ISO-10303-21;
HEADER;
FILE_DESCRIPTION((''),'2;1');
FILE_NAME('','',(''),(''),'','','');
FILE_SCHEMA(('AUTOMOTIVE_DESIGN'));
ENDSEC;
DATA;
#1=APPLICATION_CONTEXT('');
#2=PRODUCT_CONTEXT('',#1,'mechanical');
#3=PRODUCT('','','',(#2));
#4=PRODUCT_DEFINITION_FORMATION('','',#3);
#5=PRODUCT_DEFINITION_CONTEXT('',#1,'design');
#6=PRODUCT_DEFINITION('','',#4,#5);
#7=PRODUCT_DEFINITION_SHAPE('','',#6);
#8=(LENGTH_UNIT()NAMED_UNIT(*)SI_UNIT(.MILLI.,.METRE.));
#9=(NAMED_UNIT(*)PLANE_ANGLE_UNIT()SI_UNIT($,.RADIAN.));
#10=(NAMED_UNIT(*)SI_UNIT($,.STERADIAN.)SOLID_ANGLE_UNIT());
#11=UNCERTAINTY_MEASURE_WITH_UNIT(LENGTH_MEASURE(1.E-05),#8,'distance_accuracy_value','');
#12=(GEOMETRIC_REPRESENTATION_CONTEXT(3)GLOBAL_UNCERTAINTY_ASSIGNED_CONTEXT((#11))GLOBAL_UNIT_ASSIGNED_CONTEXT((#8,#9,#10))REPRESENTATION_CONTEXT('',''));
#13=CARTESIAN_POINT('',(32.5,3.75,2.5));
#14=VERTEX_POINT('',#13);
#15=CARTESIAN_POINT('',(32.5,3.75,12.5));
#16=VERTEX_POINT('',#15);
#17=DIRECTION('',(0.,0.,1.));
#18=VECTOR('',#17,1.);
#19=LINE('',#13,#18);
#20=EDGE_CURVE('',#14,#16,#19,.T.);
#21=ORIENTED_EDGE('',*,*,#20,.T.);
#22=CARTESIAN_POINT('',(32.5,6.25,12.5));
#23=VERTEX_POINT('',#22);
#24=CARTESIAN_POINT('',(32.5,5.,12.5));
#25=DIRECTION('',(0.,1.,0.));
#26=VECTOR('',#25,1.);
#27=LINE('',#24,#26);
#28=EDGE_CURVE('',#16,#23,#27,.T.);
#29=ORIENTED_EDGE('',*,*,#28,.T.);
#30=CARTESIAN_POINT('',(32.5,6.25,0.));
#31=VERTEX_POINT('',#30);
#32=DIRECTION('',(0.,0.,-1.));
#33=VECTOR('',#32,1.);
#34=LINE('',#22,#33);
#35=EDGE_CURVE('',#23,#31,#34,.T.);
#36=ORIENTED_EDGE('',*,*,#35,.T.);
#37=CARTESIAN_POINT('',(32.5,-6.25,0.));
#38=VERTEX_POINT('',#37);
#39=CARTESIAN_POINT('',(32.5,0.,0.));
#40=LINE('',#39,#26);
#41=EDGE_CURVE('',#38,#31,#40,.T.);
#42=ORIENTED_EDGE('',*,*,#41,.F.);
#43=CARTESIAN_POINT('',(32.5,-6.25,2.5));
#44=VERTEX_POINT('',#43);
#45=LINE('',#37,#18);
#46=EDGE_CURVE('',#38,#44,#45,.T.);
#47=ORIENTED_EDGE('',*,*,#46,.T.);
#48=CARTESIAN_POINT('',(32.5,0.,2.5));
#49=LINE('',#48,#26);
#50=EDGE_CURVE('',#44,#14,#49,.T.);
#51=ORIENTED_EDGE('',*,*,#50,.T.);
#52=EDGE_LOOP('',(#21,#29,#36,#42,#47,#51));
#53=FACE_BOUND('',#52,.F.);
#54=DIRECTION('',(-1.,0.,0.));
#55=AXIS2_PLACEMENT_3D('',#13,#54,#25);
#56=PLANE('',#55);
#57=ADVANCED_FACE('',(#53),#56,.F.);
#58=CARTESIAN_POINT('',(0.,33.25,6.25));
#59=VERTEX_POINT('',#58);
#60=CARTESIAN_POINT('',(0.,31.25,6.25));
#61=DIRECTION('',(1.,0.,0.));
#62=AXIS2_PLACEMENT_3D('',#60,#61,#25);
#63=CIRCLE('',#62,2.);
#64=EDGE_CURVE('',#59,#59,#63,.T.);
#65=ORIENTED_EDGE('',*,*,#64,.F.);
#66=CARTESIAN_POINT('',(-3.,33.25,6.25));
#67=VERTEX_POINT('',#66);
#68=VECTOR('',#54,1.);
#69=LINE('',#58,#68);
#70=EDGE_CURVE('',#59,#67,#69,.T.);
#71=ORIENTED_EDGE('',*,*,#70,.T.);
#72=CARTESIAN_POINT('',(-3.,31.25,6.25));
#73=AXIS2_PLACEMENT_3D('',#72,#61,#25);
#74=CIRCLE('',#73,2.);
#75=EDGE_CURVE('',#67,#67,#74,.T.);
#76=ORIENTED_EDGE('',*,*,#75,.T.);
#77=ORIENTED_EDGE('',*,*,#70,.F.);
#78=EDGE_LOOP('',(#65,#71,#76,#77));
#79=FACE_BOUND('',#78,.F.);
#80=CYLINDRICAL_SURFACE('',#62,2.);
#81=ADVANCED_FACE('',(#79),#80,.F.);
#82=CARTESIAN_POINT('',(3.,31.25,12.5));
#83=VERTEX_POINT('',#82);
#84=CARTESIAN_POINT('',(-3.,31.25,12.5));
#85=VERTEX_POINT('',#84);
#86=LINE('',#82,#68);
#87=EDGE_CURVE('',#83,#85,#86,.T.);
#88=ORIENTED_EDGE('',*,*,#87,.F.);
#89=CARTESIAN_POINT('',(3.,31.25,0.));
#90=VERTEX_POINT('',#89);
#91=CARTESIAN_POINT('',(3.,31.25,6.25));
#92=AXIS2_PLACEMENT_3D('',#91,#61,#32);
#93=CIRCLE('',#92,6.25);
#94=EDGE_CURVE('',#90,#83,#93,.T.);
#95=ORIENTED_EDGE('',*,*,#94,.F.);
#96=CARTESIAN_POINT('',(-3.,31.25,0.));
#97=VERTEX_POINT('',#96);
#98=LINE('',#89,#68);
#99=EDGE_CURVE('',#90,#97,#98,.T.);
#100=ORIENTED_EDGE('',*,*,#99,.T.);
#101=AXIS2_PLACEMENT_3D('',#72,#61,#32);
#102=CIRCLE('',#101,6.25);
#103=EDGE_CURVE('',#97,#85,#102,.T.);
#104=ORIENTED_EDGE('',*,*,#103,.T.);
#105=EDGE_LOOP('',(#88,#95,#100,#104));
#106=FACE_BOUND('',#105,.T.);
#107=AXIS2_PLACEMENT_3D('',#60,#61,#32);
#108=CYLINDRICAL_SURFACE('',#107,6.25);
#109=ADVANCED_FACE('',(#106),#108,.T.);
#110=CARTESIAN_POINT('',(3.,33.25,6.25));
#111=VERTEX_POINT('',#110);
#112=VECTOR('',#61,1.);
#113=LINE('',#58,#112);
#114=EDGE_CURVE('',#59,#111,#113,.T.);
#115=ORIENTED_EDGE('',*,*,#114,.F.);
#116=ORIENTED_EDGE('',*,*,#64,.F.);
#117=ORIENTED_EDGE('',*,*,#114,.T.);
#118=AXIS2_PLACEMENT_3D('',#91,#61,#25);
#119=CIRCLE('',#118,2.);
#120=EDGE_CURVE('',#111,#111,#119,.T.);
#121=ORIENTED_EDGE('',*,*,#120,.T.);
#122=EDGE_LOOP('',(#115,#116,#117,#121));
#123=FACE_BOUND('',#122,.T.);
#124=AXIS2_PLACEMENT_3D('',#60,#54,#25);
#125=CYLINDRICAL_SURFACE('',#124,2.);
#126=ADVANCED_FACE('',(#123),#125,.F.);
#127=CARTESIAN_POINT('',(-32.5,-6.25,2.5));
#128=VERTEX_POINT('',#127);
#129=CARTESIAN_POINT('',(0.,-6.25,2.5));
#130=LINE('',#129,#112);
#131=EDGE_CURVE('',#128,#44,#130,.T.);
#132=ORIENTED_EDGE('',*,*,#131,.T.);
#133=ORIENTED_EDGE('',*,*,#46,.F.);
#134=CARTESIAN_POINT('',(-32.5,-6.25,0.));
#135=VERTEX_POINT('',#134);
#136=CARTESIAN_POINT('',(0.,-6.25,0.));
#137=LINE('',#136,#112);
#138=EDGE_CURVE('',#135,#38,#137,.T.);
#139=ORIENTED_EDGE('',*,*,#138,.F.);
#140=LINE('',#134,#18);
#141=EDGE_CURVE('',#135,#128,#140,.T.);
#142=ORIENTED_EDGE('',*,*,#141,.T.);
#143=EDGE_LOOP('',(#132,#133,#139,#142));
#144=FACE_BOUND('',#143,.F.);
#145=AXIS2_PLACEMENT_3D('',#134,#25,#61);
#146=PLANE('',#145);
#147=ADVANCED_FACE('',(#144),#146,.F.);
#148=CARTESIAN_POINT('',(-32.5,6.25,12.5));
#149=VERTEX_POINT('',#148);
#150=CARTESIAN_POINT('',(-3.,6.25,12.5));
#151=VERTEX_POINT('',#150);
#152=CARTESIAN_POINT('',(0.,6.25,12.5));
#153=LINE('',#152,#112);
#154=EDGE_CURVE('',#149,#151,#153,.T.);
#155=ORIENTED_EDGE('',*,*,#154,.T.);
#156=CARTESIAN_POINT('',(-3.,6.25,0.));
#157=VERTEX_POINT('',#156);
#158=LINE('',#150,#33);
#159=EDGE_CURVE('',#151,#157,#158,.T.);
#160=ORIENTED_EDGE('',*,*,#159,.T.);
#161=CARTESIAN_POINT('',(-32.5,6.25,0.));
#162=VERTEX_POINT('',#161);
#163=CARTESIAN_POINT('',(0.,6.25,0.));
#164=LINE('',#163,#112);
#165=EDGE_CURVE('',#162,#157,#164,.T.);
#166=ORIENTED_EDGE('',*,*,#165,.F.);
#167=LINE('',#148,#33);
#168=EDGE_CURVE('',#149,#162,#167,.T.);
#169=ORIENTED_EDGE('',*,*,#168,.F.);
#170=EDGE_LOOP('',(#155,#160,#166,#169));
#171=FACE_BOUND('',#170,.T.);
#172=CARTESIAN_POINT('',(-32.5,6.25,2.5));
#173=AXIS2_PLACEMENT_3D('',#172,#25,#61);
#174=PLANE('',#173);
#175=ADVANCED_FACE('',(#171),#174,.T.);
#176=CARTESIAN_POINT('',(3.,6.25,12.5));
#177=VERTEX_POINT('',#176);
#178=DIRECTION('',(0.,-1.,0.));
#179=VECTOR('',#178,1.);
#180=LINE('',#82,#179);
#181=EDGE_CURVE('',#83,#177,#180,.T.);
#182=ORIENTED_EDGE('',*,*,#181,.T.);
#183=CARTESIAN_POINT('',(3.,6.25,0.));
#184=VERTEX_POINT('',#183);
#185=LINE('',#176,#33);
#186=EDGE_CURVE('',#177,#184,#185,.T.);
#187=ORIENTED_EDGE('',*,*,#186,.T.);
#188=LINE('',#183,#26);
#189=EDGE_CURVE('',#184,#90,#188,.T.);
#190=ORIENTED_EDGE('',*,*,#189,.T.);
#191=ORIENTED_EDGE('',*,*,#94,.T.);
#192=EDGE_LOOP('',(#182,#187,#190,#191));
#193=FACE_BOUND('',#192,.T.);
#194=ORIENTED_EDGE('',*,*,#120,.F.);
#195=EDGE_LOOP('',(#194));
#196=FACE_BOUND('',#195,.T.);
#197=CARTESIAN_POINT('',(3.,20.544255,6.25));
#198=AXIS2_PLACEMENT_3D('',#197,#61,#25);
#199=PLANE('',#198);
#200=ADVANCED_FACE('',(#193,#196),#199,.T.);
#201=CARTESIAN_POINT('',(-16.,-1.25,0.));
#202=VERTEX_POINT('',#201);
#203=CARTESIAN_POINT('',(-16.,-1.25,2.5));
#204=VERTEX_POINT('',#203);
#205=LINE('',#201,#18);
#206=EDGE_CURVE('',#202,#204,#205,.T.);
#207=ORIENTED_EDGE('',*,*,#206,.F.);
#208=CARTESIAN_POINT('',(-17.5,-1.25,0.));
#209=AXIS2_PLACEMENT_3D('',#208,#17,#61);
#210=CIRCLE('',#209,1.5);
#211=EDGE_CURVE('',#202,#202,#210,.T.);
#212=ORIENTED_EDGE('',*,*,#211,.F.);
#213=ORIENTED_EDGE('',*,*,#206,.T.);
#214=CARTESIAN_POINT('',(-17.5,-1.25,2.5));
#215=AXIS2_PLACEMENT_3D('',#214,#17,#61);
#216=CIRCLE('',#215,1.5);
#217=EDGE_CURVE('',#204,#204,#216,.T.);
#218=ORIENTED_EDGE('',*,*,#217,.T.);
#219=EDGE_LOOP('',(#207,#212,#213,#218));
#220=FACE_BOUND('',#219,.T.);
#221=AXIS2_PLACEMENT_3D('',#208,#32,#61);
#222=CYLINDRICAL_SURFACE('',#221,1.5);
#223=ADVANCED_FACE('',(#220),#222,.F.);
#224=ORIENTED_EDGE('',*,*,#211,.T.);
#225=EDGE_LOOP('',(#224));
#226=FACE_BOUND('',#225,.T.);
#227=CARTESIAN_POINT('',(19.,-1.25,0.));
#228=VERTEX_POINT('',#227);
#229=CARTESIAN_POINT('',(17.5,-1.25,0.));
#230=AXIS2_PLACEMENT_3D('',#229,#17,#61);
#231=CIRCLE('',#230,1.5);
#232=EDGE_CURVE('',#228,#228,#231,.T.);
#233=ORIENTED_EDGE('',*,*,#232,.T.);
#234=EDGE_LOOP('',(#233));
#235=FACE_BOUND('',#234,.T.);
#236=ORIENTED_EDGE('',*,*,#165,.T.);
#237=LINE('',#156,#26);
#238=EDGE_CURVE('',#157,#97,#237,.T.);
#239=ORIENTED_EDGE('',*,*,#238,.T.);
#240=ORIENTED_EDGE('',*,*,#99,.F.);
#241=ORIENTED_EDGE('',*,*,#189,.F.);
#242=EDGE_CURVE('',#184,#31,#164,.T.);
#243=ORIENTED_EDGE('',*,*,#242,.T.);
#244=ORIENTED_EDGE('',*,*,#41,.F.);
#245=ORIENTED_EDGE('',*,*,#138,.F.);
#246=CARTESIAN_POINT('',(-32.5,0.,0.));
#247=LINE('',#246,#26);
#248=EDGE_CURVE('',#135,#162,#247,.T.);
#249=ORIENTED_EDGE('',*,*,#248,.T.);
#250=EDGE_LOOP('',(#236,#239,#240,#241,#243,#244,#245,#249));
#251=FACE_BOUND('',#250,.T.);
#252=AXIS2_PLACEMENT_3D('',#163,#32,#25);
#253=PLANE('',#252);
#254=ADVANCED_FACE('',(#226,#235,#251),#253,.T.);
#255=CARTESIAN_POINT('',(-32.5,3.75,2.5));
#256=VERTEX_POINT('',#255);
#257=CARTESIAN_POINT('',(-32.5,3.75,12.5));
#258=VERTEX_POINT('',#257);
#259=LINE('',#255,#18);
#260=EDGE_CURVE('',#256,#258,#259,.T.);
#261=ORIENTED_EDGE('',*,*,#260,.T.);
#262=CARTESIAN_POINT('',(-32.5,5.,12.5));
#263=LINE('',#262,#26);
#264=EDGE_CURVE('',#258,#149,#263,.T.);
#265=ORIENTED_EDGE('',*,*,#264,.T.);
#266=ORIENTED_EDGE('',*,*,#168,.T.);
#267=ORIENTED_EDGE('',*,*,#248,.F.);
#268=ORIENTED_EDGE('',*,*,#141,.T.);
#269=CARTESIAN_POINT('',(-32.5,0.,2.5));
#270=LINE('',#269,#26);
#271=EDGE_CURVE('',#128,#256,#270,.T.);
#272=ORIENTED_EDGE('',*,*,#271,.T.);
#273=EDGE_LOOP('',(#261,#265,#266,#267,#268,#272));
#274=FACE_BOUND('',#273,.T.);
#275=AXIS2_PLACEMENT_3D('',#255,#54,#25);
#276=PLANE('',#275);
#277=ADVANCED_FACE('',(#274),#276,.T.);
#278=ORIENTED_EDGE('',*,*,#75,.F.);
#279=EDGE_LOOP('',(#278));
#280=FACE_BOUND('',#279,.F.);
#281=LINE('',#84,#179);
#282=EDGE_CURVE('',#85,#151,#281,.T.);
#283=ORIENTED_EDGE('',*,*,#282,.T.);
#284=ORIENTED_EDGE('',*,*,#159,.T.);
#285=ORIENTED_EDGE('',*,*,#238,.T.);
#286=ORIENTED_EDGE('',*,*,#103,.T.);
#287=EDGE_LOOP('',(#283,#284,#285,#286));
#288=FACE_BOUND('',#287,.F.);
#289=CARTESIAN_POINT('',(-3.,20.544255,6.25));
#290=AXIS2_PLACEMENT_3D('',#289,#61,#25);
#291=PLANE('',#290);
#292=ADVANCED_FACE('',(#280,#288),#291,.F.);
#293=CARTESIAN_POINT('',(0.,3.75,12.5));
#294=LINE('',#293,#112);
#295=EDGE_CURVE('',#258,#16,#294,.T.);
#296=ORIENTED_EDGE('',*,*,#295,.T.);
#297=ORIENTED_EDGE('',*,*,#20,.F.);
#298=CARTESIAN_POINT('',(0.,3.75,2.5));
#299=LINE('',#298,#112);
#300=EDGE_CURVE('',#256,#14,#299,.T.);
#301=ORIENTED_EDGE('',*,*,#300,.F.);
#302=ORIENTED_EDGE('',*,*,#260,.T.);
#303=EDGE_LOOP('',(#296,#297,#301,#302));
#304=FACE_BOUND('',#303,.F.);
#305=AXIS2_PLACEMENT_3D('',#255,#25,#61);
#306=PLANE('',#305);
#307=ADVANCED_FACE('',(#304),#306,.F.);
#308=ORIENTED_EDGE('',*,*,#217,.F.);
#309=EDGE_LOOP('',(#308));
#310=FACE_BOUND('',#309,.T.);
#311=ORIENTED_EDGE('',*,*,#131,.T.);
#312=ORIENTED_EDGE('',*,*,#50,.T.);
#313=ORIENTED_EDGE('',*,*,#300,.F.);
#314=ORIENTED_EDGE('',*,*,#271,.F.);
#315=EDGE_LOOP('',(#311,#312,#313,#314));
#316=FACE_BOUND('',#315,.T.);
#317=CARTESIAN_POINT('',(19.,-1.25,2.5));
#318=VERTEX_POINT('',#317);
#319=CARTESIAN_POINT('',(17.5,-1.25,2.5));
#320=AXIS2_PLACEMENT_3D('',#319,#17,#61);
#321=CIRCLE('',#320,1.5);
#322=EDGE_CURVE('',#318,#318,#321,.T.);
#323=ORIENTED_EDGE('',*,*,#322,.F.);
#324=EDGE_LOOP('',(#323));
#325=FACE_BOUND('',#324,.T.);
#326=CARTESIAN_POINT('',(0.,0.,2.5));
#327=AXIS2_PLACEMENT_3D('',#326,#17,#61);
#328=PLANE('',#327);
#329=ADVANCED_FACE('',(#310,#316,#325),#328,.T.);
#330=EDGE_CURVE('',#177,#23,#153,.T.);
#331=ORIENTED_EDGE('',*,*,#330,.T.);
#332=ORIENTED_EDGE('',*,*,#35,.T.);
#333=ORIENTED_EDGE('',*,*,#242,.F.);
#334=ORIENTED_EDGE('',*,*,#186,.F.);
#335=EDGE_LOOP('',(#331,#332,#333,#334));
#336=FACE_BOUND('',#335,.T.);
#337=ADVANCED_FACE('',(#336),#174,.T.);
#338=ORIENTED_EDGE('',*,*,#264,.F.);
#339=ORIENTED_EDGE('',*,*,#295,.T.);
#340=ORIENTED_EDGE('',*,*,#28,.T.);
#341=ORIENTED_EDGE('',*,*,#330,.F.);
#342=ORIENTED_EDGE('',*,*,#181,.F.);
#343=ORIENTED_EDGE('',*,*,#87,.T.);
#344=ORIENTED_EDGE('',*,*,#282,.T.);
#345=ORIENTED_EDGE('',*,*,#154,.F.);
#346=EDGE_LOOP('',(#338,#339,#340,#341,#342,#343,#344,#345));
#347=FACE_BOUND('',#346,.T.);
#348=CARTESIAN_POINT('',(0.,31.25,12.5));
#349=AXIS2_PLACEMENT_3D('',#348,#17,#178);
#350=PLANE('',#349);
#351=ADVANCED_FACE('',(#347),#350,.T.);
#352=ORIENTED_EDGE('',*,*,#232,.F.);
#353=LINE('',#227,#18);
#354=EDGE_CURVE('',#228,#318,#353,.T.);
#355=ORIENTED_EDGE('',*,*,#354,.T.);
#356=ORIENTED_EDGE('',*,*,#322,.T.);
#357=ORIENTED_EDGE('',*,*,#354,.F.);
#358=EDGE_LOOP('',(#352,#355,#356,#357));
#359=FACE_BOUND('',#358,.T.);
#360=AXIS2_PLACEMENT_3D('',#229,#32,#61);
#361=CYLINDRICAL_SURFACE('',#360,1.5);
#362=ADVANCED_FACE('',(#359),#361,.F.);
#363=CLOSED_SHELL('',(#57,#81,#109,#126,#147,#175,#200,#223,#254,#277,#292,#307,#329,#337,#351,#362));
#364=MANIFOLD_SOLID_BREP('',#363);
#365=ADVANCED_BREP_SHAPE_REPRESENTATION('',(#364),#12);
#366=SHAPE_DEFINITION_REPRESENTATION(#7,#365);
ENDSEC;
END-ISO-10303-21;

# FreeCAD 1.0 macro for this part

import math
import FreeCAD as App
import Part
import Sketcher

doc = App.newDocument("Part")
params = doc.addObject("Spreadsheet::Sheet", "Params")
for row, (alias, value) in enumerate([
    ("sketch1_diameter", "3 mm"),
    ("sketch1_width", "65 mm"),
    ("sketch1_height", "12.5 mm"),
    ("pad1_length", "2.5 mm"),
    ("sketch2_width", "65 mm"),
    ("sketch2_height", "2.5 mm"),
    ("pad2_length", "10 mm"),
    ("sketch3_diameter", "4 mm"),
    ("sketch3_width", "25 mm"),
    ("sketch3_radius", "6.25 mm"),
    ("pad3_length", "3 mm"),
    ("pad3_length2", "3 mm"),
], start=1):
    params.set(f"A{row}", alias)
    params.set(f"B{row}", "=" + value)
    params.setAlias(f"B{row}", alias)

body = doc.addObject("PartDesign::Body", "Body")

# Sketch on XY plane
sketch1 = body.newObject("Sketcher::SketchObject", "Sketch")
sketch1.AttachmentSupport = (doc.getObject("XY_Plane"), [""])
sketch1.MapMode = "FlatFace"
sketch1.addGeometry([
    Part.LineSegment(App.Vector(-32.5, 6.2, 0), App.Vector(-32.5, -6.2, 0)),  # 0
    Part.LineSegment(App.Vector(-32.5, -6.2, 0), App.Vector(32.5, -6.2, 0)),  # 1
    Part.LineSegment(App.Vector(32.5, -6.2, 0), App.Vector(32.5, 6.2, 0)),  # 2
    Part.LineSegment(App.Vector(32.5, 6.2, 0), App.Vector(-32.5, 6.2, 0)),  # 3
    Part.Circle(App.Vector(-17.5, -1.2, 0), App.Vector(0, 0, 1), 1.5),  # 4
    Part.Circle(App.Vector(17.5, -1.2, 0), App.Vector(0, 0, 1), 1.5),  # 5
], False)
sketch1.addConstraint([
    Sketcher.Constraint("Coincident", 0, 2, 1, 1),
    Sketcher.Constraint("Coincident", 1, 2, 2, 1),
    Sketcher.Constraint("Coincident", 2, 2, 3, 1),
    Sketcher.Constraint("Coincident", 3, 2, 0, 1),
    Sketcher.Constraint("Vertical", 0),
    Sketcher.Constraint("Horizontal", 1),
    Sketcher.Constraint("Vertical", 2),
    Sketcher.Constraint("Horizontal", 3),
    Sketcher.Constraint("Equal", 4, 5),
    Sketcher.Constraint("Symmetric", 0, 2, 2, 2, -1, 1),
    Sketcher.Constraint("Symmetric", 4, 3, 5, 3, -2),
    Sketcher.Constraint("Diameter", 4, 3.0),
    Sketcher.Constraint("DistanceX", 1, 1, 1, 2, 65.0),
    Sketcher.Constraint("DistanceY", 0, 2, 0, 1, 12.5),
    Sketcher.Constraint("DistanceX", 4, 3, 5, 3, 35.0),
    Sketcher.Constraint("DistanceY", 0, 2, 4, 3, 5.0),
])
sketch1.setExpression("Constraints[11]", "Params.sketch1_diameter")
sketch1.setExpression("Constraints[12]", "Params.sketch1_width")
sketch1.setExpression("Constraints[13]", "Params.sketch1_height")
pad1 = body.newObject("PartDesign::Pad", "Pad")
pad1.Profile = sketch1
pad1.setExpression("Length", "Params.pad1_length")

# Sketch on XY plane
sketch2 = body.newObject("Sketcher::SketchObject", "Sketch001")
sketch2.AttachmentSupport = (doc.getObject("XY_Plane"), [""])
sketch2.MapMode = "FlatFace"
sketch2.AttachmentOffset = App.Placement(App.Vector(0, 0, 2.5), App.Rotation())
sketch2.addGeometry([
    Part.LineSegment(App.Vector(-32.5, 6.2, 0), App.Vector(-32.5, 3.8, 0)),
    Part.LineSegment(App.Vector(-32.5, 3.8, 0), App.Vector(32.5, 3.8, 0)),
    Part.LineSegment(App.Vector(32.5, 3.8, 0), App.Vector(32.5, 6.2, 0)),
    Part.LineSegment(App.Vector(32.5, 6.2, 0), App.Vector(-32.5, 6.2, 0)),
], False)
sketch2.addConstraint([
    Sketcher.Constraint("Coincident", 0, 2, 1, 1),
    Sketcher.Constraint("Coincident", 1, 2, 2, 1),
    Sketcher.Constraint("Coincident", 2, 2, 3, 1),
    Sketcher.Constraint("Coincident", 3, 2, 0, 1),
    Sketcher.Constraint("Vertical", 0),
    Sketcher.Constraint("Horizontal", 1),
    Sketcher.Constraint("Vertical", 2),
    Sketcher.Constraint("Horizontal", 3),
    Sketcher.Constraint("DistanceX", 1, 1, 1, 2, 65.0),
    Sketcher.Constraint("DistanceY", 0, 2, 0, 1, 2.5),
    Sketcher.Constraint("DistanceX", 0, 2, -1, 1, 32.5),
    Sketcher.Constraint("DistanceY", -1, 1, 0, 2, 3.75),
])
sketch2.setExpression("Constraints[8]", "Params.sketch2_width")
sketch2.setExpression("Constraints[9]", "Params.sketch2_height")
pad2 = body.newObject("PartDesign::Pad", "Pad001")
pad2.Profile = sketch2
pad2.setExpression("Length", "Params.pad2_length")

# Sketch on YZ plane
sketch3 = body.newObject("Sketcher::SketchObject", "Sketch002")
sketch3.AttachmentSupport = (doc.getObject("YZ_Plane"), [""])
sketch3.MapMode = "FlatFace"
sketch3.addGeometry([
    Part.LineSegment(App.Vector(6.2, 12.5, 0), App.Vector(6.2, 0, 0)),  # 0
    Part.LineSegment(App.Vector(6.2, 0, 0), App.Vector(31.2, 0, 0)),  # 1
    Part.ArcOfCircle(Part.Circle(App.Vector(31.2, 6.2, 0), App.Vector(0, 0, 1), 6.2), math.radians(-90), math.radians(90)),  # 2
    Part.LineSegment(App.Vector(31.2, 12.5, 0), App.Vector(6.2, 12.5, 0)),  # 3
    Part.Circle(App.Vector(31.2, 6.2, 0), App.Vector(0, 0, 1), 2),  # 4
], False)
sketch3.addConstraint([
    Sketcher.Constraint("Coincident", 0, 2, 1, 1),
    Sketcher.Constraint("Tangent", 1, 2, 2, 1),
    Sketcher.Constraint("Tangent", 2, 2, 3, 1),
    Sketcher.Constraint("Coincident", 3, 2, 0, 1),
    Sketcher.Constraint("Vertical", 0),
    Sketcher.Constraint("Horizontal", 1),
    Sketcher.Constraint("Horizontal", 3),
    Sketcher.Constraint("Coincident", 4, 3, 2, 3),
    Sketcher.Constraint("PointOnObject", 0, 2, -1),
    Sketcher.Constraint("Diameter", 4, 4.0),
    Sketcher.Constraint("DistanceX", 1, 1, 1, 2, 25.0),
    Sketcher.Constraint("Radius", 2, 6.25),
    Sketcher.Constraint("DistanceX", -1, 1, 2, 3, 31.25),
])
sketch3.setExpression("Constraints[9]", "Params.sketch3_diameter")
sketch3.setExpression("Constraints[10]", "Params.sketch3_width")
sketch3.setExpression("Constraints[11]", "Params.sketch3_radius")
pad3 = body.newObject("PartDesign::Pad", "Pad002")
pad3.Profile = sketch3
pad3.Type = "TwoLengths"
pad3.setExpression("Length", "Params.pad3_length")
pad3.setExpression("Length2", "Params.pad3_length2")

doc.recompute()
